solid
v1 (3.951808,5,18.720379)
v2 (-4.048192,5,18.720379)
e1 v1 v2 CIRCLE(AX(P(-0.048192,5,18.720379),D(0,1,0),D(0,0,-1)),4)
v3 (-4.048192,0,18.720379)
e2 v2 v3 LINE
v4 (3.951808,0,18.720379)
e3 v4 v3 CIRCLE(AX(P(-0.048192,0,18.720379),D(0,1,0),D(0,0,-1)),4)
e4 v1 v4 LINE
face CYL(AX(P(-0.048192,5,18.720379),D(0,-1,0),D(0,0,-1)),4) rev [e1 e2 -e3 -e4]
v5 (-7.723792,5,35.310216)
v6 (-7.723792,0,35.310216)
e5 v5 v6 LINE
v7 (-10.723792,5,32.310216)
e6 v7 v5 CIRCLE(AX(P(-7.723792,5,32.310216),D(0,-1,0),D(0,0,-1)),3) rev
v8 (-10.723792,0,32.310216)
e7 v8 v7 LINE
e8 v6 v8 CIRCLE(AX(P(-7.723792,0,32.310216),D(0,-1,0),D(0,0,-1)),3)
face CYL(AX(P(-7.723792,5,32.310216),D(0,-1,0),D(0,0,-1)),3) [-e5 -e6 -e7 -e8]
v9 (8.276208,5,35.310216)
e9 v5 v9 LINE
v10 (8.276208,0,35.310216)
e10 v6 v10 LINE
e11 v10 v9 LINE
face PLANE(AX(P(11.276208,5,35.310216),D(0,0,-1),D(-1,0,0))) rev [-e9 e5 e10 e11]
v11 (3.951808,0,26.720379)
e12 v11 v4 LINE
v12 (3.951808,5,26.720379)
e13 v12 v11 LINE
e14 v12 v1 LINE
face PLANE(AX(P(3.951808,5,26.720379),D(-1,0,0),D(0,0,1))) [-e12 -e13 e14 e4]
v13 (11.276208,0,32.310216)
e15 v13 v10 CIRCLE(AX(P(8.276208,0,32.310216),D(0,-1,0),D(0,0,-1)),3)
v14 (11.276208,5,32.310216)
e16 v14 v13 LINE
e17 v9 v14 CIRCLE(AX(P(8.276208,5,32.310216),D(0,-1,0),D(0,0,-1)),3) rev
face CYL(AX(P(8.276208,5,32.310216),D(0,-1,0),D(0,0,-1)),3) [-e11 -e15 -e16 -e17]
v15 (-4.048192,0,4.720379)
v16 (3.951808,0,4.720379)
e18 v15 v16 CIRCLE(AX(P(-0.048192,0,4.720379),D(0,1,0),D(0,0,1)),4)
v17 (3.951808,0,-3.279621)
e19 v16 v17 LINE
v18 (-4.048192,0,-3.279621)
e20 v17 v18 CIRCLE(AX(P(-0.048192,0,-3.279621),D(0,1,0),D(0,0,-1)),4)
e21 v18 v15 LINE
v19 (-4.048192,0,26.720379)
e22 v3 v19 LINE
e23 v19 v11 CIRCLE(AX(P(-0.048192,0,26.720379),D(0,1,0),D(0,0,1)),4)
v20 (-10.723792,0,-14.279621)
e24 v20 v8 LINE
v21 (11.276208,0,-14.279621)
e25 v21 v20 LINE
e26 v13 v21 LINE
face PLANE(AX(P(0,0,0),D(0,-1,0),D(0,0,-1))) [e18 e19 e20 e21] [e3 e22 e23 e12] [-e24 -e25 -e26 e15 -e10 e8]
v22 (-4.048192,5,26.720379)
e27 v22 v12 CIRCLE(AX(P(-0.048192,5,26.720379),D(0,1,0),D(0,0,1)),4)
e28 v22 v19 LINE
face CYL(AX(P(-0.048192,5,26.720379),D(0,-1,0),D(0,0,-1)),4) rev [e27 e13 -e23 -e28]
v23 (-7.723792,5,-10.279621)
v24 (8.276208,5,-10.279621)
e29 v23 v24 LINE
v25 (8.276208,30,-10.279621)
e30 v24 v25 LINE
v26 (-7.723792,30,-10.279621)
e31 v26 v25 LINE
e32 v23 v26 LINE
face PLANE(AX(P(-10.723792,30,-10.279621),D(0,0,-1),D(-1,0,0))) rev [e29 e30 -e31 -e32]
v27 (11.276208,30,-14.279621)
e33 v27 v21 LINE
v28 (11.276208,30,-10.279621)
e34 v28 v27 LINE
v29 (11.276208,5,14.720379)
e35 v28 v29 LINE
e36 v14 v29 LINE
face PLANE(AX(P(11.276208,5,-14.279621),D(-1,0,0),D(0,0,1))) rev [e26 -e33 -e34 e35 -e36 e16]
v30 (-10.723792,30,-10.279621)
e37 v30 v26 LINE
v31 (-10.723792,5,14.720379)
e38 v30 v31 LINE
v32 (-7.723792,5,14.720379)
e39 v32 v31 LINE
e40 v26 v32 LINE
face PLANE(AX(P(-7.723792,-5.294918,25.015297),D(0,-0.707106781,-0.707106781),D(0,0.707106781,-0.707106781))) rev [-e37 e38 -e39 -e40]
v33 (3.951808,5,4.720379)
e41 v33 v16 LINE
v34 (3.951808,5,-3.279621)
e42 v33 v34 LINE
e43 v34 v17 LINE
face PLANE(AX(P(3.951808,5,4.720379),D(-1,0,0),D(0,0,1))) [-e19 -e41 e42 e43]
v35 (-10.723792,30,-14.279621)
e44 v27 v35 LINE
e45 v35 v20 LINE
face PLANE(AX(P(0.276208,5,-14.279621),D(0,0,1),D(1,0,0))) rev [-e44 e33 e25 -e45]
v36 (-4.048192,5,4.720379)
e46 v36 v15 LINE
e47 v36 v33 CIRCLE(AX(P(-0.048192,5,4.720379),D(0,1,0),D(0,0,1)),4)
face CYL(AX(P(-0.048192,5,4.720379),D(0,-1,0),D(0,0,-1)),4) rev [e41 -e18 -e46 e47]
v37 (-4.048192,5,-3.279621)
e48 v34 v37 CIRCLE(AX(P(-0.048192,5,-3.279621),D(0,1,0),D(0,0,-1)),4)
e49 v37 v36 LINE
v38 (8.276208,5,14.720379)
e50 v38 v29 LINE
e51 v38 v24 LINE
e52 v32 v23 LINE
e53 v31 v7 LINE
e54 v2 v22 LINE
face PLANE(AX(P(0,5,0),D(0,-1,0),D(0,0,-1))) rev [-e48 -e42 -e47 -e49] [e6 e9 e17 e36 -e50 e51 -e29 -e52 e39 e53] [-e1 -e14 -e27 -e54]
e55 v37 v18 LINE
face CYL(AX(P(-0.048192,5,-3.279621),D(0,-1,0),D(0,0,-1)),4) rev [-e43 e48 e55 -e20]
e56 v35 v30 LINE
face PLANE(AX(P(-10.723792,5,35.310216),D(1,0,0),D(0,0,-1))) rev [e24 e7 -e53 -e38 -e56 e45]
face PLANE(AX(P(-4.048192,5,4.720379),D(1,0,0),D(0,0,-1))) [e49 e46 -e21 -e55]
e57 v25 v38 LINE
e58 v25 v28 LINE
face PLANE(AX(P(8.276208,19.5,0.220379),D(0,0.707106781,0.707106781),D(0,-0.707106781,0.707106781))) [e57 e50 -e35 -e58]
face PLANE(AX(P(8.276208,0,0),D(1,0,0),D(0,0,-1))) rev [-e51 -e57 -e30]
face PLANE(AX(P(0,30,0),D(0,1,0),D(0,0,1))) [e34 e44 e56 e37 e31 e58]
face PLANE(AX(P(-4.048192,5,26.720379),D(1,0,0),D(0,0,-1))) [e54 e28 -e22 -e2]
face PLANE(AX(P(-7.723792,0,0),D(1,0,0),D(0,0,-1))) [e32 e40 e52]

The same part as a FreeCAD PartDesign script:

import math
import FreeCAD as App
import Part
import Sketcher


def edges_at(feature, points):
    """Names of the edges that pass closest to the given points."""
    edges = feature.Shape.Edges
    near = lambda p: min(range(len(edges)), key=lambda i: edges[i].distToShape(Part.Vertex(*p))[0])
    return sorted({f"Edge{near(p) + 1}" for p in points})


def add_polygon(sketch, points):
    """Adds a closed chain of lines whose ends are joined by coincident constraints."""
    first, n = sketch.GeometryCount, len(points)
    for a, b in zip(points, points[1:] + points[:1]):
        sketch.addGeometry(Part.LineSegment(App.Vector(*a, 0), App.Vector(*b, 0)), False)
    for i in range(n):
        sketch.addConstraint(Sketcher.Constraint("Coincident", first + i, 2, first + (i + 1) % n, 1))

doc = App.newDocument("Part")
body = doc.addObject("PartDesign::Body", "Body")

sketch1 = doc.addObject("Sketcher::SketchObject", "Sketch")
body.addObject(sketch1)
sketch1.AttachmentSupport = (doc.XZ_Plane, [""])
sketch1.MapMode = "FlatFace"
add_polygon(sketch1, [(11.3, -14.3), (-10.7, -14.3), (-10.7, 35.3), (11.3, 35.3)])
sketch1.addGeometry(Part.LineSegment(App.Vector(-4, 26.7, 0), App.Vector(-4, 18.7, 0)), False)
sketch1.addGeometry(Part.ArcOfCircle(Part.Circle(App.Vector(0, 18.7, 0), App.Vector(0, 0, 1), 4), math.radians(180), math.radians(360)), False)
sketch1.addGeometry(Part.LineSegment(App.Vector(4, 18.7, 0), App.Vector(4, 26.7, 0)), False)
sketch1.addGeometry(Part.ArcOfCircle(Part.Circle(App.Vector(0, 26.7, 0), App.Vector(0, 0, 1), 4), math.radians(0), math.radians(180)), False)
sketch1.addGeometry(Part.LineSegment(App.Vector(-4, 4.7, 0), App.Vector(-4, -3.3, 0)), False)
sketch1.addGeometry(Part.ArcOfCircle(Part.Circle(App.Vector(0, -3.3, 0), App.Vector(0, 0, 1), 4), math.radians(180), math.radians(360)), False)
sketch1.addGeometry(Part.LineSegment(App.Vector(4, -3.3, 0), App.Vector(4, 4.7, 0)), False)
sketch1.addGeometry(Part.ArcOfCircle(Part.Circle(App.Vector(0, 4.7, 0), App.Vector(0, 0, 1), 4), math.radians(0), math.radians(180)), False)
sketch1.addConstraint([
    Sketcher.Constraint("Tangent", 4, 2, 5, 1),
    Sketcher.Constraint("Tangent", 5, 2, 6, 1),
    Sketcher.Constraint("Tangent", 6, 2, 7, 1),
    Sketcher.Constraint("Tangent", 7, 2, 4, 1),
    Sketcher.Constraint("Tangent", 8, 2, 9, 1),
    Sketcher.Constraint("Tangent", 9, 2, 10, 1),
    Sketcher.Constraint("Tangent", 10, 2, 11, 1),
    Sketcher.Constraint("Tangent", 11, 2, 8, 1),
    Sketcher.Constraint("Horizontal", 0),
    Sketcher.Constraint("Vertical", 1),
    Sketcher.Constraint("Horizontal", 2),
    Sketcher.Constraint("Vertical", 3),
    Sketcher.Constraint("Vertical", 4),
    Sketcher.Constraint("Vertical", 6),
    Sketcher.Constraint("Vertical", 8),
    Sketcher.Constraint("Vertical", 10),
    Sketcher.Constraint("Equal", 7, 9),
    Sketcher.Constraint("Vertical", 7, 3, 9, 3),
    Sketcher.Constraint("Equal", 6, 8),
    Sketcher.Constraint("Radius", 5, 4.0),
    Sketcher.Constraint("DistanceX", 0, 2, 0, 1, 22.0),
    Sketcher.Constraint("DistanceY", 4, 2, 4, 1, 8.0),
    Sketcher.Constraint("DistanceY", 9, 3, 5, 3, 22.0),
    Sketcher.Constraint("DistanceY", 0, 2, 9, 3, 11.0),
    Sketcher.Constraint("DistanceX", 0, 2, 9, 3, 10.6756),
    Sketcher.Constraint("DistanceY", 1, 1, 1, 2, 49.589837),
    Sketcher.Constraint("DistanceY", -1, 1, 5, 3, 18.720379),
    Sketcher.Constraint("DistanceX", 5, 3, -1, 1, 0.048192),
])
pad1 = doc.addObject("PartDesign::Pad", "Pad")
body.addObject(pad1)
pad1.Profile = sketch1
pad1.Length = 5
pad1.Reversed = True

sketch2 = doc.addObject("Sketcher::SketchObject", "Sketch001")
body.addObject(sketch2)
sketch2.AttachmentSupport = (doc.XZ_Plane, [""])
sketch2.MapMode = "FlatFace"
add_polygon(sketch2, [(-10.7, -14.3), (-10.7, -10.3), (11.3, -10.3), (11.3, -14.3)])
sketch2.addConstraint([
    Sketcher.Constraint("Vertical", 0),
    Sketcher.Constraint("Horizontal", 1),
    Sketcher.Constraint("Vertical", 2),
    Sketcher.Constraint("Horizontal", 3),
    Sketcher.Constraint("DistanceX", 1, 1, 1, 2, 22.0),
    Sketcher.Constraint("DistanceY", 0, 1, 0, 2, 4.0),
    Sketcher.Constraint("DistanceY", 0, 2, -1, 1, 10.279621),
    Sketcher.Constraint("DistanceX", 0, 2, -1, 1, 10.723792),
])
pad2 = doc.addObject("PartDesign::Pad", "Pad001")
body.addObject(pad2)
pad2.Profile = sketch2
pad2.Length = 30
pad2.Reversed = True

sketch3 = doc.addObject("Sketcher::SketchObject", "Sketch002")
body.addObject(sketch3)
sketch3.AttachmentSupport = (doc.YZ_Plane, [""])
sketch3.MapMode = "FlatFace"
sketch3.AttachmentOffset = App.Placement(App.Vector(0, 0, -10.723792), App.Rotation())
add_polygon(sketch3, [(5, -10), (30, -10), (5, 15)])
sketch3.addConstraint([
    Sketcher.Constraint("Horizontal", 0),
    Sketcher.Constraint("Vertical", 2),
    Sketcher.Constraint("Equal", 0, 2),
    Sketcher.Constraint("DistanceX", 0, 1, 0, 2, 25.0),
    Sketcher.Constraint("DistanceX", -1, 1, 0, 2, 30.0),
    Sketcher.Constraint("DistanceY", 0, 2, -1, 1, 10.279621),
])
pad3 = doc.addObject("PartDesign::Pad", "Pad002")
body.addObject(pad3)
pad3.Profile = sketch3
pad3.Length = 3

sketch4 = doc.addObject("Sketcher::SketchObject", "Sketch003")
body.addObject(sketch4)
sketch4.AttachmentSupport = (doc.YZ_Plane, [""])
sketch4.MapMode = "FlatFace"
sketch4.AttachmentOffset = App.Placement(App.Vector(0, 0, 11.276208), App.Rotation())
add_polygon(sketch4, [(5, -10), (30, -10), (5, 15)])
sketch4.addConstraint([
    Sketcher.Constraint("Horizontal", 0),
    Sketcher.Constraint("Vertical", 2),
    Sketcher.Constraint("Equal", 0, 2),
    Sketcher.Constraint("DistanceX", 0, 1, 0, 2, 25.0),
    Sketcher.Constraint("DistanceX", -1, 1, 0, 2, 30.0),
    Sketcher.Constraint("DistanceY", 0, 2, -1, 1, 10.279621),
])
pad4 = doc.addObject("PartDesign::Pad", "Pad003")
body.addObject(pad4)
pad4.Profile = sketch4
pad4.Length = 3
pad4.Reversed = True
doc.recompute()

fillet = doc.addObject("PartDesign::Fillet", "Fillet")
body.addObject(fillet)
fillet.Base = (pad4, edges_at(pad4, [(11.276, 2.5, 35.31), (-10.724, 2.5, 35.31)]))
fillet.Radius = 3

doc.recompute()
